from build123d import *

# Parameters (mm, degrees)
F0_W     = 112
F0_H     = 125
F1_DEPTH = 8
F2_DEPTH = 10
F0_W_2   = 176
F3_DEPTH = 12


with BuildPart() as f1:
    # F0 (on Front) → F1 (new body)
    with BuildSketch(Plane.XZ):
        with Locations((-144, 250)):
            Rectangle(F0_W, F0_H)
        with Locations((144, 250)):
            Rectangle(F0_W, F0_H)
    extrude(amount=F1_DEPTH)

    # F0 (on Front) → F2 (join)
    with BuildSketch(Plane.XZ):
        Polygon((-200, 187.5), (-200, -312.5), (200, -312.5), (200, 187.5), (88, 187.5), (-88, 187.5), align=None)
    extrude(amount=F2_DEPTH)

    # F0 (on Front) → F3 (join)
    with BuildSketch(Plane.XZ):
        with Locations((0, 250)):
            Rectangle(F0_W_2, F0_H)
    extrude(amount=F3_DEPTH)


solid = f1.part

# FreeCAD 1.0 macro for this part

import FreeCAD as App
import Part
import Sketcher

V = App.Vector

doc = App.newDocument("Part")
body = doc.addObject("PartDesign::Body", "Body")
body.AllowCompound = True

sketch1 = body.newObject("Sketcher::SketchObject", "Sketch")
sketch1.AttachmentSupport = (doc.getObject("XZ_Plane"), [""])
sketch1.MapMode = "FlatFace"
sketch1.addGeometry([
    Part.LineSegment(V(-200, 312, 0), V(-200, 188, 0)),
    Part.LineSegment(V(-200, 188, 0), V(-88, 188, 0)),
    Part.LineSegment(V(-88, 188, 0), V(-88, 312, 0)),
    Part.LineSegment(V(-88, 312, 0), V(-200, 312, 0)),
    Part.LineSegment(V(88, 312, 0), V(88, 188, 0)),
    Part.LineSegment(V(88, 188, 0), V(200, 188, 0)),
    Part.LineSegment(V(200, 188, 0), V(200, 312, 0)),
    Part.LineSegment(V(200, 312, 0), V(88, 312, 0)),
], False)
sketch1.addConstraint([
    Sketcher.Constraint("Coincident", 0, 2, 1, 1),
    Sketcher.Constraint("Coincident", 1, 2, 2, 1),
    Sketcher.Constraint("Coincident", 2, 2, 3, 1),
    Sketcher.Constraint("Coincident", 3, 2, 0, 1),
    Sketcher.Constraint("Coincident", 4, 2, 5, 1),
    Sketcher.Constraint("Coincident", 5, 2, 6, 1),
    Sketcher.Constraint("Coincident", 6, 2, 7, 1),
    Sketcher.Constraint("Coincident", 7, 2, 4, 1),
    Sketcher.Constraint("Vertical", 0),
    Sketcher.Constraint("Horizontal", 1),
    Sketcher.Constraint("Vertical", 2),
    Sketcher.Constraint("Horizontal", 3),
    Sketcher.Constraint("Vertical", 4),
    Sketcher.Constraint("Horizontal", 5),
    Sketcher.Constraint("Vertical", 6),
    Sketcher.Constraint("Horizontal", 7),
    Sketcher.Constraint("Symmetric", 1, 2, 4, 2, -2),
    Sketcher.Constraint("Symmetric", 3, 2, 6, 2, -2),
    Sketcher.Constraint("DistanceX", 1, 1, 1, 2, 112.0),
    Sketcher.Constraint("DistanceY", 0, 2, 0, 1, 125.0),
    Sketcher.Constraint("DistanceX", 0, 2, -1, 1, 200.0),
    Sketcher.Constraint("DistanceY", -1, 1, 0, 2, 187.5),
])
pad1 = body.newObject("PartDesign::Pad", "Pad")
pad1.Profile = sketch1
pad1.Length = 8

sketch2 = body.newObject("Sketcher::SketchObject", "Sketch001")
sketch2.AttachmentSupport = (doc.getObject("XZ_Plane"), [""])
sketch2.MapMode = "FlatFace"
sketch2.addGeometry([
    Part.LineSegment(V(-200, 188, 0), V(-200, -312, 0)),
    Part.LineSegment(V(-200, -312, 0), V(200, -312, 0)),
    Part.LineSegment(V(200, -312, 0), V(200, 188, 0)),
    Part.LineSegment(V(200, 188, 0), V(-200, 188, 0)),
], False)
sketch2.addConstraint([
    Sketcher.Constraint("Coincident", 0, 2, 1, 1),
    Sketcher.Constraint("Coincident", 1, 2, 2, 1),
    Sketcher.Constraint("Coincident", 2, 2, 3, 1),
    Sketcher.Constraint("Coincident", 3, 2, 0, 1),
    Sketcher.Constraint("Vertical", 0),
    Sketcher.Constraint("Horizontal", 1),
    Sketcher.Constraint("Vertical", 2),
    Sketcher.Constraint("Horizontal", 3),
    Sketcher.Constraint("DistanceX", 1, 1, 1, 2, 400.0),
    Sketcher.Constraint("DistanceY", 0, 2, 0, 1, 500.0),
    Sketcher.Constraint("DistanceX", 0, 2, -1, 1, 200.0),
    Sketcher.Constraint("DistanceY", 0, 2, -1, 1, 312.5),
])
pad2 = body.newObject("PartDesign::Pad", "Pad001")
pad2.Profile = sketch2
pad2.Length = 10

sketch3 = body.newObject("Sketcher::SketchObject", "Sketch002")
sketch3.AttachmentSupport = (doc.getObject("XZ_Plane"), [""])
sketch3.MapMode = "FlatFace"
sketch3.addGeometry([
    Part.LineSegment(V(-88, 312, 0), V(-88, 188, 0)),
    Part.LineSegment(V(-88, 188, 0), V(88, 188, 0)),
    Part.LineSegment(V(88, 188, 0), V(88, 312, 0)),
    Part.LineSegment(V(88, 312, 0), V(-88, 312, 0)),
], False)
sketch3.addConstraint([
    Sketcher.Constraint("Coincident", 0, 2, 1, 1),
    Sketcher.Constraint("Coincident", 1, 2, 2, 1),
    Sketcher.Constraint("Coincident", 2, 2, 3, 1),
    Sketcher.Constraint("Coincident", 3, 2, 0, 1),
    Sketcher.Constraint("Vertical", 0),
    Sketcher.Constraint("Horizontal", 1),
    Sketcher.Constraint("Vertical", 2),
    Sketcher.Constraint("Horizontal", 3),
    Sketcher.Constraint("DistanceX", 1, 1, 1, 2, 176.0),
    Sketcher.Constraint("DistanceY", 0, 2, 0, 1, 125.0),
    Sketcher.Constraint("DistanceX", 0, 2, -1, 1, 88.0),
    Sketcher.Constraint("DistanceY", -1, 1, 0, 2, 187.5),
])
pad3 = body.newObject("PartDesign::Pad", "Pad002")
pad3.Profile = sketch3
pad3.Length = 12

doc.recompute()
